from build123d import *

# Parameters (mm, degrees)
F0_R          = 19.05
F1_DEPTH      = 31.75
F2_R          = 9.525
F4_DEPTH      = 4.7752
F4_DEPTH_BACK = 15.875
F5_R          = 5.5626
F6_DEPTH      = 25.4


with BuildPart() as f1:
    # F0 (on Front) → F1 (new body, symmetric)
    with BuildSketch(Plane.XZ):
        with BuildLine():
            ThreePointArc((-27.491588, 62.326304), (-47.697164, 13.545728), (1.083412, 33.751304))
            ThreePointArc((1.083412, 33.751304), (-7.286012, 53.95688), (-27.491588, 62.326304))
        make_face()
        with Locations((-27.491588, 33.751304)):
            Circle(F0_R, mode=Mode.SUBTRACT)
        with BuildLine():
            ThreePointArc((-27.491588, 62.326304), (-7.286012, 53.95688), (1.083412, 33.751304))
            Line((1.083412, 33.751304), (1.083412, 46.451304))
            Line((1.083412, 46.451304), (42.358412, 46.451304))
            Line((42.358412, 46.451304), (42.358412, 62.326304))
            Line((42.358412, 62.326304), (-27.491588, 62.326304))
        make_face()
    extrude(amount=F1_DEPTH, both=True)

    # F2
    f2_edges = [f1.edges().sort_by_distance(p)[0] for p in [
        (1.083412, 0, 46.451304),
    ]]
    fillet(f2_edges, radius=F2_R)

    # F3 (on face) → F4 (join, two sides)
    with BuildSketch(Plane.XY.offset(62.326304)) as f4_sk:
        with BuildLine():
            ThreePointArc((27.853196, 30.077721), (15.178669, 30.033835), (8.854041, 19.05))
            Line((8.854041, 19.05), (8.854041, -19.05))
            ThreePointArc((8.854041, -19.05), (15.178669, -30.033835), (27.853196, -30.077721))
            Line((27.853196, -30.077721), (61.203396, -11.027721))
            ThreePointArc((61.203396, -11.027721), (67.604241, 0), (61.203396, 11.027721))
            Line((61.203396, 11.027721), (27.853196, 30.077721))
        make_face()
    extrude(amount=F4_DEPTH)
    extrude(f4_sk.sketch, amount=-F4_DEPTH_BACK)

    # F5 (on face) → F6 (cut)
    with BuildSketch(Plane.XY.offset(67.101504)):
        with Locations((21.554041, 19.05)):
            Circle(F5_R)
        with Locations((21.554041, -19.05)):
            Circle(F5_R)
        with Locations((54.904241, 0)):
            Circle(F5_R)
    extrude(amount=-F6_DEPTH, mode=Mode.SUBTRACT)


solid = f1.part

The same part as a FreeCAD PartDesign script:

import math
import FreeCAD as App
import Part
import Sketcher

V = App.Vector
Q = App.Units.Quantity


def edges_at(feature, points):
    """Names of the edges that pass closest to the given points."""
    edges = feature.Shape.Edges
    near = lambda p: min(range(len(edges)), key=lambda i: edges[i].distToShape(Part.Vertex(*p))[0])
    return sorted({f"Edge{near(p) + 1}" for p in points})

doc = App.newDocument("Part")
body = doc.addObject("PartDesign::Body", "Body")

sketch1 = doc.addObject("Sketcher::SketchObject", "Sketch")
body.addObject(sketch1)
sketch1.AttachmentSupport = (doc.XZ_Plane, [""])
sketch1.MapMode = "FlatFace"
sketch1.addGeometry([
    Part.ArcOfCircle(Part.Circle(V(-27.491588, 33.751304, 0), V(0, 0, 1), 28.575), math.radians(90), math.radians(360)),
    Part.LineSegment(V(1.083412, 33.751304, 0), V(1.083412, 46.451304, 0)),
    Part.LineSegment(V(1.083412, 46.451304, 0), V(42.358412, 46.451304, 0)),
    Part.LineSegment(V(42.358412, 46.451304, 0), V(42.358412, 62.326304, 0)),
    Part.LineSegment(V(42.358412, 62.326304, 0), V(-27.491588, 62.326304, 0)),
    Part.Circle(V(-27.491588, 33.751304, 0), V(0, 0, 1), 19.05),
], False)
sketch1.addConstraint([
    Sketcher.Constraint("Tangent", 0, 2, 1, 1),
    Sketcher.Constraint("Coincident", 1, 2, 2, 1),
    Sketcher.Constraint("Coincident", 2, 2, 3, 1),
    Sketcher.Constraint("Coincident", 3, 2, 4, 1),
    Sketcher.Constraint("Tangent", 4, 2, 0, 1),
    Sketcher.Constraint("Vertical", 1),
    Sketcher.Constraint("Horizontal", 2),
    Sketcher.Constraint("Vertical", 3),
    Sketcher.Constraint("Horizontal", 4),
    Sketcher.Constraint("Coincident", 5, 3, 0, 3),
    Sketcher.Constraint("Diameter", 5, Q("1.5 in")),
    Sketcher.Constraint("DistanceY", 1, 1, 1, 2, Q("0.5 in")),
    Sketcher.Constraint("Radius", 0, Q("1.125 in")),
    Sketcher.Constraint("DistanceX", 4, 2, 4, 1, Q("2.75 in")),
    Sketcher.Constraint("DistanceX", 5, 3, -1, 1, Q("27.491588 mm")),
    Sketcher.Constraint("DistanceY", -1, 1, 0, 3, Q("33.751304 mm")),
])
pad1 = doc.addObject("PartDesign::Pad", "Pad")
body.addObject(pad1)
pad1.Profile = sketch1
pad1.Length = Q("2.5 in")
pad1.Midplane = True
doc.recompute()

fillet = doc.addObject("PartDesign::Fillet", "Fillet")
body.addObject(fillet)
fillet.Base = (pad1, edges_at(pad1, [(1.083, 0, 46.451)]))
fillet.Radius = Q("0.375 in")

sketch2 = doc.addObject("Sketcher::SketchObject", "Sketch001")
body.addObject(sketch2)
sketch2.AttachmentSupport = (doc.XY_Plane, [""])
sketch2.MapMode = "FlatFace"
sketch2.AttachmentOffset = App.Placement(V(0, 0, 62.326304), App.Rotation())
sketch2.addGeometry([
    Part.ArcOfCircle(Part.Circle(V(21.55404, 19.05, 0), V(0, 0, 1), 12.699999), math.radians(60.264516), math.radians(180.000001)),
    Part.LineSegment(V(8.854041, 19.05, 0), V(8.854041, -19.05, 0)),
    Part.ArcOfCircle(Part.Circle(V(21.55404, -19.05, 0), V(0, 0, 1), 12.699999), math.radians(179.999999), math.radians(299.735484)),
    Part.LineSegment(V(27.853196, -30.077721, 0), V(61.203396, -11.027721, 0)),
    Part.ArcOfCircle(Part.Circle(V(54.904242, 0, 0), V(0, 0, 1), 12.699999), math.radians(-60.264524), math.radians(60.264524)),
    Part.LineSegment(V(61.203396, 11.027721, 0), V(27.853196, 30.077721, 0)),
], False)
sketch2.addConstraint([
    Sketcher.Constraint("Tangent", 0, 2, 1, 1),
    Sketcher.Constraint("Tangent", 1, 2, 2, 1),
    Sketcher.Constraint("Tangent", 2, 2, 3, 1),
    Sketcher.Constraint("Tangent", 3, 2, 4, 1),
    Sketcher.Constraint("Tangent", 4, 2, 5, 1),
    Sketcher.Constraint("Tangent", 5, 2, 0, 1),
    Sketcher.Constraint("Vertical", 1),
    Sketcher.Constraint("Equal", 0, 2),
    Sketcher.Constraint("Equal", 2, 4),
    Sketcher.Constraint("Symmetric", 3, 2, 4, 2, -1),
    Sketcher.Constraint("Radius", 0, Q("0.5 in")),
    Sketcher.Constraint("DistanceY", 1, 2, 1, 1, Q("1.5 in")),
    Sketcher.Constraint("DistanceX", 0, 3, 4, 3, Q("1.3130001 in")),
    Sketcher.Constraint("DistanceX", -1, 1, 0, 3, Q("21.55404 mm")),
])
pad2 = doc.addObject("PartDesign::Pad", "Pad001")
body.addObject(pad2)
pad2.Profile = sketch2
pad2.Type = "TwoLengths"
pad2.Length = Q("0.188 in")
pad2.Length2 = Q("0.625 in")

sketch3 = doc.addObject("Sketcher::SketchObject", "Sketch002")
body.addObject(sketch3)
sketch3.AttachmentSupport = (doc.XY_Plane, [""])
sketch3.MapMode = "FlatFace"
sketch3.AttachmentOffset = App.Placement(V(0, 0, 67.101504), App.Rotation())
sketch3.addGeometry([
    Part.Circle(V(21.554041, 19.05, 0), V(0, 0, 1), 5.5626),
    Part.Circle(V(21.554041, -19.05, 0), V(0, 0, 1), 5.5626),
    Part.Circle(V(54.904241, 0, 0), V(0, 0, 1), 5.5626),
], False)
sketch3.addConstraint([
    Sketcher.Constraint("Equal", 0, 1),
    Sketcher.Constraint("Equal", 1, 2),
    Sketcher.Constraint("Symmetric", 0, 3, 1, 3, -1),
    Sketcher.Constraint("PointOnObject", 2, 3, -1),
    Sketcher.Constraint("Diameter", 0, Q("0.438 in")),
    Sketcher.Constraint("DistanceY", 1, 3, 0, 3, Q("1.5 in")),
    Sketcher.Constraint("DistanceX", 0, 3, 2, 3, Q("1.313 in")),
    Sketcher.Constraint("DistanceX", -1, 1, 0, 3, Q("21.554041 mm")),
])
pocket1 = doc.addObject("PartDesign::Pocket", "Pocket")
body.addObject(pocket1)
pocket1.Profile = sketch3
pocket1.Length = Q("1 in")

doc.recompute()
